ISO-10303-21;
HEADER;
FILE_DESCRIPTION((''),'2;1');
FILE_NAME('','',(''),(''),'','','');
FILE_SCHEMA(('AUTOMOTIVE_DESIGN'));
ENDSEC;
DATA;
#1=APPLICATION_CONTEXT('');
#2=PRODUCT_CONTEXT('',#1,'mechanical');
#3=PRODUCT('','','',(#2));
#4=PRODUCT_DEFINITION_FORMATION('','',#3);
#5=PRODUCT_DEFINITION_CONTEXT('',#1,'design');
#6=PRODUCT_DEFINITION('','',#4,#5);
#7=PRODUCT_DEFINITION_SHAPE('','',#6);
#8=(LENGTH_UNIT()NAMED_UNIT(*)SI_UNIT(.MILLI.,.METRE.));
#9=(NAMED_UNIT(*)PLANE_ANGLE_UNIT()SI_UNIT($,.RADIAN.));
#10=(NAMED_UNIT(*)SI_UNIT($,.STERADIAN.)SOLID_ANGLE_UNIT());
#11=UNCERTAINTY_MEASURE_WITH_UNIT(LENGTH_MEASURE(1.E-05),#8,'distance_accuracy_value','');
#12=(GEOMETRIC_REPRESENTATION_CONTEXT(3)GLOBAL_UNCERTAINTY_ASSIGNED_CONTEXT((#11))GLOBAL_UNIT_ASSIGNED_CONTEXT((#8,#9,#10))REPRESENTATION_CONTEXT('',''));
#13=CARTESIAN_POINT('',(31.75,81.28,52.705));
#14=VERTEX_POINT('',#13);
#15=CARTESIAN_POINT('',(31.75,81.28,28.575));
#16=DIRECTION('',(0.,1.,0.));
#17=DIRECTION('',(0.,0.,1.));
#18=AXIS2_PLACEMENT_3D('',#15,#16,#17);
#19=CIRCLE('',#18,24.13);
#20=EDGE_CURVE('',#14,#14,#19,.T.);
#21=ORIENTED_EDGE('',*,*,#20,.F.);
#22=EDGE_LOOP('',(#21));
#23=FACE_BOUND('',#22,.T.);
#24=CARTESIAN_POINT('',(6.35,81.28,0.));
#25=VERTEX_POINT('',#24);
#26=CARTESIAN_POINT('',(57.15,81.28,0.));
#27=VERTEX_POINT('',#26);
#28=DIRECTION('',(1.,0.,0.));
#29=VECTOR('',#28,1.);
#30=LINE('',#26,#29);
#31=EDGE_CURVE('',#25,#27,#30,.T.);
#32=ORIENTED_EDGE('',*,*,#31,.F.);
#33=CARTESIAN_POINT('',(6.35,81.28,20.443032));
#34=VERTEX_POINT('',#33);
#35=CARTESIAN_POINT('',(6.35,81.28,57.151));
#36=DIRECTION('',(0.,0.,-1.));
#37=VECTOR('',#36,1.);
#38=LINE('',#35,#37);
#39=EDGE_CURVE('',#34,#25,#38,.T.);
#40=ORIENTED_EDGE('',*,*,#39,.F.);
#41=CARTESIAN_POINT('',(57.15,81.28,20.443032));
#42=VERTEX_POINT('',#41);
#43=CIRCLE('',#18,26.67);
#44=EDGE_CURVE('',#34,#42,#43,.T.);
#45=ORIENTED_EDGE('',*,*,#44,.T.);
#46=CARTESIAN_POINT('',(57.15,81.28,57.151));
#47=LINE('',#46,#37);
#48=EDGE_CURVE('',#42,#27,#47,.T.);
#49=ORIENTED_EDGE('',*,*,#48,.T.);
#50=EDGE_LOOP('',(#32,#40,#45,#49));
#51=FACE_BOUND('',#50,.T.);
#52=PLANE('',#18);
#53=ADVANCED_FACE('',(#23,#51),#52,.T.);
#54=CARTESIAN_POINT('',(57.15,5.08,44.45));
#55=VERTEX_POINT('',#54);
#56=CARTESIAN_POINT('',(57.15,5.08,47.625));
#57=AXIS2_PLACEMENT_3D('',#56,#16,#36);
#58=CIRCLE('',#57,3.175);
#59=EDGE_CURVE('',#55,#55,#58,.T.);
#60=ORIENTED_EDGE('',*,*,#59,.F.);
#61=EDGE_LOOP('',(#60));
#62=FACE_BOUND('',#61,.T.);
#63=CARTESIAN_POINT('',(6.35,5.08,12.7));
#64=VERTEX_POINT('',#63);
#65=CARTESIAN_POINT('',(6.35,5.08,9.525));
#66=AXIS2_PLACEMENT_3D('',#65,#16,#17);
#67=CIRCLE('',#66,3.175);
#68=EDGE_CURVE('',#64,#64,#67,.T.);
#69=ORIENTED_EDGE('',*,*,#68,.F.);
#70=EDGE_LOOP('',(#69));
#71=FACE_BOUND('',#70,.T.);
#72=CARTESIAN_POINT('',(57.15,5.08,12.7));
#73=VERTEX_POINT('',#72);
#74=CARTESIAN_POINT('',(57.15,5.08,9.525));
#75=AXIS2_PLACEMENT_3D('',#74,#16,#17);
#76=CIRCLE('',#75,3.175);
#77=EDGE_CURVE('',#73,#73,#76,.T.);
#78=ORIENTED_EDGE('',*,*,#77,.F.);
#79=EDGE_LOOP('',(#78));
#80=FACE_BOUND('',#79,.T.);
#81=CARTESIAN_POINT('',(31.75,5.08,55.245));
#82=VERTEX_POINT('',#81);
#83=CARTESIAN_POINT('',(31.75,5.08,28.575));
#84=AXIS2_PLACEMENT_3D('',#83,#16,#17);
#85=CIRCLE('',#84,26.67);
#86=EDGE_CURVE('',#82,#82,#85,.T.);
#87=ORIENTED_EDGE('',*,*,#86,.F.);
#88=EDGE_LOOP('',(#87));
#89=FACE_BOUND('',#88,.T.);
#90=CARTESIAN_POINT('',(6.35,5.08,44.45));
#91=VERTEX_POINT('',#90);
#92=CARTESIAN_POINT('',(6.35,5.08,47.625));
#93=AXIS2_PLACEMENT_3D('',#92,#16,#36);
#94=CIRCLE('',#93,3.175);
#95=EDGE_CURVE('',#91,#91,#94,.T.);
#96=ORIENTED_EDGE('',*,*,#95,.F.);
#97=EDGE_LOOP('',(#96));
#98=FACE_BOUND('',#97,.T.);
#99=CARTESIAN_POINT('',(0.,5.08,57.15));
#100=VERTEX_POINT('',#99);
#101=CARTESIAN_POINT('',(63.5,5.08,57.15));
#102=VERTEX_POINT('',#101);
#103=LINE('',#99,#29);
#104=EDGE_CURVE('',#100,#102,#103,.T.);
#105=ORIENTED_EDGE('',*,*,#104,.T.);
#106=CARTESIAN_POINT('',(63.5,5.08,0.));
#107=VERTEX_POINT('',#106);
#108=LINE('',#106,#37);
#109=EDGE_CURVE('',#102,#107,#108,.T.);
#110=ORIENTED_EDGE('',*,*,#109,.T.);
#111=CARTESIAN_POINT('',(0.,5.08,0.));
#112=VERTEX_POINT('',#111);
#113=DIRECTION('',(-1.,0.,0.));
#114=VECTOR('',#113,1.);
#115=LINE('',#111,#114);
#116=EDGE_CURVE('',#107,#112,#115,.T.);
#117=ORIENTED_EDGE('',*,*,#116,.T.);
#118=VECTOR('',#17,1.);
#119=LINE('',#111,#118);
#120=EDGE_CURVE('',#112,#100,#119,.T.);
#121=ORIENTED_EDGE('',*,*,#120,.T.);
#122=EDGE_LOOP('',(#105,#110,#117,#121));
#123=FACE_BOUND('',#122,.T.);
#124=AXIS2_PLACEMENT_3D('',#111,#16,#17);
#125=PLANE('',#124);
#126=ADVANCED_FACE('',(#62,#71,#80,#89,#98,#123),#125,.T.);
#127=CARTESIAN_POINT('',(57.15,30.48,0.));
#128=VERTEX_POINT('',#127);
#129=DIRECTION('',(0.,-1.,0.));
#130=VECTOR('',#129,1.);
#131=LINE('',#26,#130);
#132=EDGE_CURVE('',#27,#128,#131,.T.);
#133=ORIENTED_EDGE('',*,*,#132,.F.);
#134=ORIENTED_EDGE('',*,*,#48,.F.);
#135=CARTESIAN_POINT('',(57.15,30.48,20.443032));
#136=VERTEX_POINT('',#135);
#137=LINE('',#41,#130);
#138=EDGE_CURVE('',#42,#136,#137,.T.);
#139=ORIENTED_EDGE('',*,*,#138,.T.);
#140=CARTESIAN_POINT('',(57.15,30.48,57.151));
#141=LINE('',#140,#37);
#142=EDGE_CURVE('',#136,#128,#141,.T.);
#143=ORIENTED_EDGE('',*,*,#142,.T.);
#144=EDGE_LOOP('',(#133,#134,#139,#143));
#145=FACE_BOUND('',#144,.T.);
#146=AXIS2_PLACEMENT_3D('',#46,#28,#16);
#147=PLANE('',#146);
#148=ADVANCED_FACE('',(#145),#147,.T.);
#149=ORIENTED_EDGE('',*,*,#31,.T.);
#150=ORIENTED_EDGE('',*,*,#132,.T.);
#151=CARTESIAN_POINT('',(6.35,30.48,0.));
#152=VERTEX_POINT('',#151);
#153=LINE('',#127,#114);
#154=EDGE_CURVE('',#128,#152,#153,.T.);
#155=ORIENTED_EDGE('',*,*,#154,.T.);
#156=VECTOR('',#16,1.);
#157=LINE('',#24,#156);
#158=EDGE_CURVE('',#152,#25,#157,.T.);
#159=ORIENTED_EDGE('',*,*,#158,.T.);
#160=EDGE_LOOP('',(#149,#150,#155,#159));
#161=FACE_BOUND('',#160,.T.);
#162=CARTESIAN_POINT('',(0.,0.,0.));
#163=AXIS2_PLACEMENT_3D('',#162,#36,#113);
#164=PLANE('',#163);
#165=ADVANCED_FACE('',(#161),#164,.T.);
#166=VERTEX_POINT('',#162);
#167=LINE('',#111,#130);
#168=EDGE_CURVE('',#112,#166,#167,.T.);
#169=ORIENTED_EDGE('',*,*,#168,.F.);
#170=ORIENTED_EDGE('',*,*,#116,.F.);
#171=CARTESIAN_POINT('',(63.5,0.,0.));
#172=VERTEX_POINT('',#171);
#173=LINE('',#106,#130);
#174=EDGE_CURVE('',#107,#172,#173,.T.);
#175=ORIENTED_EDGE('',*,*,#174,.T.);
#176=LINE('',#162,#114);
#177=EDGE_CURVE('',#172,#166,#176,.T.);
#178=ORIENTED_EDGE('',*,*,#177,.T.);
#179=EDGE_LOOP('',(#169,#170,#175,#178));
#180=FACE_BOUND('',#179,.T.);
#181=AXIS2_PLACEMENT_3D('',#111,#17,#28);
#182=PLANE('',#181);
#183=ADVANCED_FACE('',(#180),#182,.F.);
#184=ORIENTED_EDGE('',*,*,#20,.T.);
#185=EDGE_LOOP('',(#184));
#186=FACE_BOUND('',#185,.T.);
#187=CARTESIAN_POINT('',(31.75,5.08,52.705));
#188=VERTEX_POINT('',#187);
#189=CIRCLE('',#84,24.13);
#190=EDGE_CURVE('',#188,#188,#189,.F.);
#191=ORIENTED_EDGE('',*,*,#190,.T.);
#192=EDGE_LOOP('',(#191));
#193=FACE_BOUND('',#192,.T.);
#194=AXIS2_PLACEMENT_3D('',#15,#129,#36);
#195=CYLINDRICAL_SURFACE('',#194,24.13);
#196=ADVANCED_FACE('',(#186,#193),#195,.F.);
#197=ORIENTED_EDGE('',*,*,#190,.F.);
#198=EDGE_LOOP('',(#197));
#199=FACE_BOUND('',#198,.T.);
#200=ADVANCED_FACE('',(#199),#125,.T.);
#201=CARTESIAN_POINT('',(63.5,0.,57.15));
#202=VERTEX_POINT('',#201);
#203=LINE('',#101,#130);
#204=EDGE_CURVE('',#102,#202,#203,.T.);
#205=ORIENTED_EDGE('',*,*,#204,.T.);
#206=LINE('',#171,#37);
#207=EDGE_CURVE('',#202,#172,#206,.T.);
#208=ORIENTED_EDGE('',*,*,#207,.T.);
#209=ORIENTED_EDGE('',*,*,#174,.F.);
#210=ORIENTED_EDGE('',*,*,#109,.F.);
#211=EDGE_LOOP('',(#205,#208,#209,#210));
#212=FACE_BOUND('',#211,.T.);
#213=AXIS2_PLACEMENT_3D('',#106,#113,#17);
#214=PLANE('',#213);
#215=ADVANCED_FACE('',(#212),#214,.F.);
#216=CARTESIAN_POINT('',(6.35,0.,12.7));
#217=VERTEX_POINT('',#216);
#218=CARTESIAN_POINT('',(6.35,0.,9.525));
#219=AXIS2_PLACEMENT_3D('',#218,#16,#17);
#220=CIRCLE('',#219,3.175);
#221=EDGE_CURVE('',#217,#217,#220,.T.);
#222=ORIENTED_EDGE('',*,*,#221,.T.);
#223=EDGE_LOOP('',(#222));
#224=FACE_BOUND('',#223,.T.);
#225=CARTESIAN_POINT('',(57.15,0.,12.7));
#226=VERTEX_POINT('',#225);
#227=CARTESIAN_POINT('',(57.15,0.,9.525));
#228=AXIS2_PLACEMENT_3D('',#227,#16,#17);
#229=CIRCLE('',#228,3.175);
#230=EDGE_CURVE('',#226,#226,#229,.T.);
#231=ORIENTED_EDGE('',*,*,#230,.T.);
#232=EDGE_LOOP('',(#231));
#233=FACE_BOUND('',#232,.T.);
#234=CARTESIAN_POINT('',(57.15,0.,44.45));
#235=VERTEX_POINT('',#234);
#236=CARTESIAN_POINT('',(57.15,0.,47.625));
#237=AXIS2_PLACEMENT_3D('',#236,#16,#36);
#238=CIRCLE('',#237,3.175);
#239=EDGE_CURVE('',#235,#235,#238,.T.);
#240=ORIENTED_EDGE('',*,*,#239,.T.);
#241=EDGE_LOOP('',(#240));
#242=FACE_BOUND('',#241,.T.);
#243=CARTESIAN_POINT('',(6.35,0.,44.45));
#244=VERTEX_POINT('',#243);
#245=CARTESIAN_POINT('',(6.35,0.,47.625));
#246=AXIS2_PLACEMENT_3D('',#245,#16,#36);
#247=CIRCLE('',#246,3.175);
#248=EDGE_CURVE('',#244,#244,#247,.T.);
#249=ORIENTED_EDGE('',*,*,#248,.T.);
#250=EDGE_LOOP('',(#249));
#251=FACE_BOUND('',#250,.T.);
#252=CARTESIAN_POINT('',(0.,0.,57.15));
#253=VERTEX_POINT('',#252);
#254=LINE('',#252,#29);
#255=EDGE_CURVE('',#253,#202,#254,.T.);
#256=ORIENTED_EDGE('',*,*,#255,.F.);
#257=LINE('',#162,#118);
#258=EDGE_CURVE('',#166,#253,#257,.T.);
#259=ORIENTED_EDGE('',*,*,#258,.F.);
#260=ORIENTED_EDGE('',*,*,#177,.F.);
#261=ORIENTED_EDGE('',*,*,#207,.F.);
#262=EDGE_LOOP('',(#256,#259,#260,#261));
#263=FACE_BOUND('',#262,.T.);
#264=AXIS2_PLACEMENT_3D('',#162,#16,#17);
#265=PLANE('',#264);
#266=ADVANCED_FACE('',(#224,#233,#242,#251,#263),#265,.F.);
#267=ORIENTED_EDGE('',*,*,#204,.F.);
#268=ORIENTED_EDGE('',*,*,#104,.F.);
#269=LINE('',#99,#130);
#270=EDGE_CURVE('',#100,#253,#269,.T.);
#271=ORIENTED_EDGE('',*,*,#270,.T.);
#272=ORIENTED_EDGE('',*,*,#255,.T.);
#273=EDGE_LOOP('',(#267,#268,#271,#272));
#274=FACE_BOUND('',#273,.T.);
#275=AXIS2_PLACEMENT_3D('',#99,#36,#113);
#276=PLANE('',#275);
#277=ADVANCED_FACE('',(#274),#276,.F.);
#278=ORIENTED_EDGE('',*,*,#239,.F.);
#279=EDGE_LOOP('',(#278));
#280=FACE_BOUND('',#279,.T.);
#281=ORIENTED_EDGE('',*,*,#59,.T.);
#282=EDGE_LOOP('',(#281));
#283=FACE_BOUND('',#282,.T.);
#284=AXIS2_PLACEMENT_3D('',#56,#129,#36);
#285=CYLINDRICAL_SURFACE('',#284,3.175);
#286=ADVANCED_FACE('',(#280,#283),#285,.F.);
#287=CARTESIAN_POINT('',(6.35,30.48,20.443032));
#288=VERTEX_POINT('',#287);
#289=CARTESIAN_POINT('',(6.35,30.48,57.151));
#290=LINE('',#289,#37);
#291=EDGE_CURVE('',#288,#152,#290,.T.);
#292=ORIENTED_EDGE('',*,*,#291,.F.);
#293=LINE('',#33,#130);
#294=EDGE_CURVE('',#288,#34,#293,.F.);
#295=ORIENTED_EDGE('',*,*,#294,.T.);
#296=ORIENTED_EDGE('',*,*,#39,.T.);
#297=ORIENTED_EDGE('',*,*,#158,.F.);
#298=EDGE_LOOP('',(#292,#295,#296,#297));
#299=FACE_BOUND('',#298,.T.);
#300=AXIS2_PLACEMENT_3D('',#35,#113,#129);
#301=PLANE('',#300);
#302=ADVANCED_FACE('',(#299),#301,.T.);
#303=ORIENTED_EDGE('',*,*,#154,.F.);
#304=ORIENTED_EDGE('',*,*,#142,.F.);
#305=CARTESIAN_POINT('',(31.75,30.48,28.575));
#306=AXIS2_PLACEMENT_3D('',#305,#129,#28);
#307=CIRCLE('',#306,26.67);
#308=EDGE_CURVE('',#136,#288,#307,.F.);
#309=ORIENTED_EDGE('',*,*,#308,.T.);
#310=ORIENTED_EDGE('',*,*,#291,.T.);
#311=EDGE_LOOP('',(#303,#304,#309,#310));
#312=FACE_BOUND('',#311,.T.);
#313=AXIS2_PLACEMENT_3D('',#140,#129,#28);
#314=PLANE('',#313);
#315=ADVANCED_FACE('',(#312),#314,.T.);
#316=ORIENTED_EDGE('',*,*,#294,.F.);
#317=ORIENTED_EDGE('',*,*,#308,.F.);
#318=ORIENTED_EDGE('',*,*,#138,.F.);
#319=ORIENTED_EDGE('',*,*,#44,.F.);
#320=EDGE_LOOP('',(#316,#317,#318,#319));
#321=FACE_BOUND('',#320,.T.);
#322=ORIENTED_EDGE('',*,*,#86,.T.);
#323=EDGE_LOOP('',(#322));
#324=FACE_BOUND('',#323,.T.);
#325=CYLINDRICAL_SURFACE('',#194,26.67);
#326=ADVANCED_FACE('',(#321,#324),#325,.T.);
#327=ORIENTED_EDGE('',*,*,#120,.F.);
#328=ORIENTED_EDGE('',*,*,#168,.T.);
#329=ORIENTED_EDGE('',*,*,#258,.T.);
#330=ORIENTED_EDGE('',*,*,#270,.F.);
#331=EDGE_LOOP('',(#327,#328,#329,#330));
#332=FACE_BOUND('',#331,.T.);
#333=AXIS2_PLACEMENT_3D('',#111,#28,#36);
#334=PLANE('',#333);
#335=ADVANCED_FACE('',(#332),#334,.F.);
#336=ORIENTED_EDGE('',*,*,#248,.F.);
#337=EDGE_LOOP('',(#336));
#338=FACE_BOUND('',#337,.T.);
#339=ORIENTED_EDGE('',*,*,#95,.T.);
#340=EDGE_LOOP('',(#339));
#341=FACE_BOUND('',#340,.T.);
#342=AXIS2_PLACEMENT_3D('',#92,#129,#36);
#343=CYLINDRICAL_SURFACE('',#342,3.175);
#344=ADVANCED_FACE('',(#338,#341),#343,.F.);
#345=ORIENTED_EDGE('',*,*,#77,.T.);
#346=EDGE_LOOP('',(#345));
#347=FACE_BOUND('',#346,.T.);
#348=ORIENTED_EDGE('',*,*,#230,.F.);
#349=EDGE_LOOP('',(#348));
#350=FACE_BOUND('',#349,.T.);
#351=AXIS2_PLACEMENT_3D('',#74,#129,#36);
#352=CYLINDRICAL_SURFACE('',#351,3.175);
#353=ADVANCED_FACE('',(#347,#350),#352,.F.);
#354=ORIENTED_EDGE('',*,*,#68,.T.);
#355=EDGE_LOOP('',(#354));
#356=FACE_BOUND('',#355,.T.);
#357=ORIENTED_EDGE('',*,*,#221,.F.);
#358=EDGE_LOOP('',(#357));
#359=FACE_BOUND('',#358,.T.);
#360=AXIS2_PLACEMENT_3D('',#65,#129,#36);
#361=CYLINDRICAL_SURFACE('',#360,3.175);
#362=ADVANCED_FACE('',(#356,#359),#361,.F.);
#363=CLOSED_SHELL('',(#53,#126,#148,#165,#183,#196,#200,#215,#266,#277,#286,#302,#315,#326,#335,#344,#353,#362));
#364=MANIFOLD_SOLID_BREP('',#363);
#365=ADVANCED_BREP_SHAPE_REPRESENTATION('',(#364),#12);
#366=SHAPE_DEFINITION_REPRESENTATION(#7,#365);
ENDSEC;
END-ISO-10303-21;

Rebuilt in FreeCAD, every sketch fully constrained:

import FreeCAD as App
import Part
import Sketcher

V = App.Vector
Q = App.Units.Quantity


def add_polygon(sketch, points):
    """Adds a closed chain of lines whose ends are joined by coincident constraints."""
    first, n = sketch.GeometryCount, len(points)
    for a, b in zip(points, points[1:] + points[:1]):
        sketch.addGeometry(Part.LineSegment(App.Vector(*a, 0), App.Vector(*b, 0)), False)
    for i in range(n):
        sketch.addConstraint(Sketcher.Constraint("Coincident", first + i, 2, first + (i + 1) % n, 1))

doc = App.newDocument("Part")
params = doc.addObject("Spreadsheet::Sheet", "Params")
for row, (alias, value) in enumerate([
    ("sketch1_diameter", "0.25 in"),
    ("sketch1_width", "2.5 in"),
    ("sketch1_height", "2.25 in"),
    ("pad1_length", "0.2 in"),
    ("sketch2_diameter", "2.1 in"),
    ("sketch2_diameter2", "1.9 in"),
    ("pad2_length", "3 in"),
    ("sketch3_width", "2 in"),
], start=1):
    params.set(f"A{row}", alias)
    params.set(f"B{row}", "=" + value)
    params.setAlias(f"B{row}", alias)

body = doc.addObject("PartDesign::Body", "Body")

# Sketch on XZ plane
sketch1 = body.newObject("Sketcher::SketchObject", "Sketch")
sketch1.AttachmentSupport = (doc.getObject("XZ_Plane"), [""])
sketch1.MapMode = "FlatFace"
add_polygon(sketch1, [(0, 0), (0, 57.1), (63.5, 57.1), (63.5, 0)])  # lines 0-3
sketch1.addGeometry(Part.Circle(V(6.3, 47.6, 0), V(0, 0, 1), 3.2), False)  # 4
sketch1.addGeometry(Part.Circle(V(57.1, 47.6, 0), V(0, 0, 1), 3.2), False)  # 5
sketch1.addGeometry(Part.Circle(V(6.3, 9.5, 0), V(0, 0, 1), 3.2), False)  # 6
sketch1.addGeometry(Part.Circle(V(57.1, 9.5, 0), V(0, 0, 1), 3.2), False)  # 7
sketch1.addConstraint(Sketcher.Constraint("Vertical", 0))
sketch1.addConstraint(Sketcher.Constraint("Horizontal", 1))
sketch1.addConstraint(Sketcher.Constraint("Vertical", 2))
sketch1.addConstraint(Sketcher.Constraint("Horizontal", 3))
sketch1.addConstraint(Sketcher.Constraint("Coincident", 3, 2, -1, 1))
sketch1.addConstraint(Sketcher.Constraint("Equal", 4, 5))
sketch1.addConstraint(Sketcher.Constraint("Equal", 5, 6))
sketch1.addConstraint(Sketcher.Constraint("Equal", 6, 7))
sketch1.addConstraint(Sketcher.Constraint("Horizontal", 4, 3, 5, 3))
sketch1.addConstraint(Sketcher.Constraint("Horizontal", 6, 3, 7, 3))
sketch1.addConstraint(Sketcher.Constraint("Vertical", 4, 3, 6, 3))
sketch1.addConstraint(Sketcher.Constraint("Vertical", 5, 3, 7, 3))
sketch1.addConstraint(Sketcher.Constraint("Diameter", 4, Q("0.25 in")))
sketch1.addConstraint(Sketcher.Constraint("DistanceX", 1, 1, 1, 2, Q("2.5 in")))
sketch1.addConstraint(Sketcher.Constraint("DistanceX", 4, 3, 5, 3, Q("2 in")))
sketch1.addConstraint(Sketcher.Constraint("DistanceY", 0, 1, 0, 2, Q("2.25 in")))
sketch1.addConstraint(Sketcher.Constraint("DistanceY", 6, 3, 4, 3, Q("1.5 in")))
sketch1.addConstraint(Sketcher.Constraint("DistanceX", -1, 1, 4, 3, Q("0.25 in")))
sketch1.addConstraint(Sketcher.Constraint("DistanceY", -1, 1, 4, 3, Q("1.875 in")))
sketch1.setExpression("Constraints[16]", "Params.sketch1_diameter")
sketch1.setExpression("Constraints[17]", "Params.sketch1_width")
sketch1.setExpression("Constraints[19]", "Params.sketch1_height")
pad1 = body.newObject("PartDesign::Pad", "Pad")
pad1.Profile = sketch1
pad1.setExpression("Length", "Params.pad1_length")
pad1.Reversed = True

# Sketch on XZ plane
sketch2 = body.newObject("Sketcher::SketchObject", "Sketch001")
sketch2.AttachmentSupport = (doc.getObject("XZ_Plane"), [""])
sketch2.MapMode = "FlatFace"
sketch2.AttachmentOffset = App.Placement(V(0, 0, -0.2 * 25.4), App.Rotation())
sketch2.addGeometry(Part.Circle(V(32, 29, 0), V(0, 0, 1), 27), False)
sketch2.addGeometry(Part.Circle(V(32, 29, 0), V(0, 0, 1), 24), False)
sketch2.addConstraint(Sketcher.Constraint("Coincident", 1, 3, 0, 3))
sketch2.addConstraint(Sketcher.Constraint("Diameter", 0, Q("2.1 in")))
sketch2.addConstraint(Sketcher.Constraint("Diameter", 1, Q("1.9 in")))
sketch2.addConstraint(Sketcher.Constraint("DistanceX", -1, 1, 0, 3, Q("1.25 in")))
sketch2.addConstraint(Sketcher.Constraint("DistanceY", -1, 1, 0, 3, Q("1.125 in")))
sketch2.setExpression("Constraints[1]", "Params.sketch2_diameter")
sketch2.setExpression("Constraints[2]", "Params.sketch2_diameter2")
pad2 = body.newObject("PartDesign::Pad", "Pad001")
pad2.Profile = sketch2
pad2.setExpression("Length", "Params.pad2_length")
pad2.Reversed = True

# Sketch on XY plane
sketch3 = body.newObject("Sketcher::SketchObject", "Sketch002")
sketch3.AttachmentSupport = (doc.getObject("XY_Plane"), [""])
sketch3.MapMode = "FlatFace"
add_polygon(sketch3, [(57, 81), (57, 30), (6, 30), (6, 81)])  # lines 0-3
sketch3.addConstraint(Sketcher.Constraint("Vertical", 0))
sketch3.addConstraint(Sketcher.Constraint("Horizontal", 1))
sketch3.addConstraint(Sketcher.Constraint("Vertical", 2))
sketch3.addConstraint(Sketcher.Constraint("Horizontal", 3))
sketch3.addConstraint(Sketcher.Constraint("Equal", 3, 0))
sketch3.addConstraint(Sketcher.Constraint("DistanceX", 1, 2, 1, 1, Q("2 in")))
sketch3.addConstraint(Sketcher.Constraint("DistanceY", -1, 1, 0, 2, Q("1.2 in")))
sketch3.addConstraint(Sketcher.Constraint("DistanceX", -1, 1, 0, 2, Q("2.25 in")))
sketch3.setExpression("Constraints[9]", "Params.sketch3_width")
pad3 = body.newObject("PartDesign::Pad", "Pad002")
pad3.Profile = sketch3
pad3.Type = "UpToFirst"

doc.recompute()
